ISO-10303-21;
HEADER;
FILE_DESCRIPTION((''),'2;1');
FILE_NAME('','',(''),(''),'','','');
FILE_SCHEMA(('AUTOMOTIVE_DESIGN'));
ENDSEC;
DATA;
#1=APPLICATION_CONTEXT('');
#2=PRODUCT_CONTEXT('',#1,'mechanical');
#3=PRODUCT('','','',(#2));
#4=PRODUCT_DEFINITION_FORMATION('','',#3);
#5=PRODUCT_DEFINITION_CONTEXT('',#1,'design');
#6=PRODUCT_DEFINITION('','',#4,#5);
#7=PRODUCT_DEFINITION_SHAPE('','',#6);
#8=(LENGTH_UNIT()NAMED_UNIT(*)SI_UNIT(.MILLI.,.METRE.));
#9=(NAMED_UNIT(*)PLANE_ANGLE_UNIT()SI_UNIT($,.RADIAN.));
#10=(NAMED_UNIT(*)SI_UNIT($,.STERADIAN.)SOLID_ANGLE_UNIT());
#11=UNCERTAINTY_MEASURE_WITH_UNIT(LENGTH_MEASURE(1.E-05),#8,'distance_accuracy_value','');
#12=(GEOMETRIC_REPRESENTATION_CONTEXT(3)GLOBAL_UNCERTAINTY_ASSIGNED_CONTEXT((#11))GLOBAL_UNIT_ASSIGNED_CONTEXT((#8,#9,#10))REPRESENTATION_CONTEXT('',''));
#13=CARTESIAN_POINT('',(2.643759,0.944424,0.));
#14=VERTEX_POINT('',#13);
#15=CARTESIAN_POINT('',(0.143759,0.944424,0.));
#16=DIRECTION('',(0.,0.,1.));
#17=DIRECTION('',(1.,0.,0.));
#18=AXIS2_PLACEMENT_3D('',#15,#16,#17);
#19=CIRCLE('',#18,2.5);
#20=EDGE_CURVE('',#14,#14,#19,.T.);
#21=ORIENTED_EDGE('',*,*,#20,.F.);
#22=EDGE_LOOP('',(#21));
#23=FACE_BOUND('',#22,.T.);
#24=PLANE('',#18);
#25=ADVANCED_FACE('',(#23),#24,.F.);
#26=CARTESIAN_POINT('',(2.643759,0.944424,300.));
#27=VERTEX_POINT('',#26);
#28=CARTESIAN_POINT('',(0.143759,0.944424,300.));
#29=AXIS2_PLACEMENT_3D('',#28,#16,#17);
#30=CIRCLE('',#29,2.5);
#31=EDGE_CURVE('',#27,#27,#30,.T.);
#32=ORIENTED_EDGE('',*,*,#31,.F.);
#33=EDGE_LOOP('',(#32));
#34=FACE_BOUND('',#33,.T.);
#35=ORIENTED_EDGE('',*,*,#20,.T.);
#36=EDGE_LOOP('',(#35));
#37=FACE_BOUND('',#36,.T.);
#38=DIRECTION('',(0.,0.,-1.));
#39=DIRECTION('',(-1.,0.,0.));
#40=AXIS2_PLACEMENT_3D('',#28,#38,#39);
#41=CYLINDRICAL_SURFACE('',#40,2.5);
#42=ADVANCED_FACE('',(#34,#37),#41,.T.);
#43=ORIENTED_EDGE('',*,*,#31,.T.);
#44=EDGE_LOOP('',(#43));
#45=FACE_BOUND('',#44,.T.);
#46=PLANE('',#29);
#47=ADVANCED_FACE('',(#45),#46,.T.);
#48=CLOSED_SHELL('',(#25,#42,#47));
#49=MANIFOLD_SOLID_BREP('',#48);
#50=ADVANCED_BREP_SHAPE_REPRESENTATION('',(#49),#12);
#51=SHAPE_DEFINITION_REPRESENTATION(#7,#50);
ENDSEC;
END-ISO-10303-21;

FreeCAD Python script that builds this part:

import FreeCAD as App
import Part
import Sketcher

V = App.Vector

doc = App.newDocument("Part")
params = doc.addObject("Spreadsheet::Sheet", "Params")
for row, (alias, value) in enumerate([
    ("sketch1_diameter", "5 mm"),
    ("pad1_length", "300 mm"),
], start=1):
    params.set(f"A{row}", alias)
    params.set(f"B{row}", "=" + value)
    params.setAlias(f"B{row}", alias)

body = doc.addObject("PartDesign::Body", "Body")

sketch1 = body.newObject("Sketcher::SketchObject", "Sketch")
sketch1.AttachmentSupport = (doc.getObject("XY_Plane"), [""])
sketch1.MapMode = "FlatFace"
sketch1.addGeometry(Part.Circle(V(0.143759, 0.944424, 0), V(0, 0, 1), 2.5), False)
sketch1.addConstraint([
    Sketcher.Constraint("Diameter", 0, 5.0),
    Sketcher.Constraint("DistanceX", -1, 1, 0, 3, 0.143759),
    Sketcher.Constraint("DistanceY", -1, 1, 0, 3, 0.944424),
])
sketch1.setExpression("Constraints[0]", "Params.sketch1_diameter")
pad1 = body.newObject("PartDesign::Pad", "Pad")
pad1.Profile = sketch1
pad1.setExpression("Length", "Params.pad1_length")

doc.recompute()
